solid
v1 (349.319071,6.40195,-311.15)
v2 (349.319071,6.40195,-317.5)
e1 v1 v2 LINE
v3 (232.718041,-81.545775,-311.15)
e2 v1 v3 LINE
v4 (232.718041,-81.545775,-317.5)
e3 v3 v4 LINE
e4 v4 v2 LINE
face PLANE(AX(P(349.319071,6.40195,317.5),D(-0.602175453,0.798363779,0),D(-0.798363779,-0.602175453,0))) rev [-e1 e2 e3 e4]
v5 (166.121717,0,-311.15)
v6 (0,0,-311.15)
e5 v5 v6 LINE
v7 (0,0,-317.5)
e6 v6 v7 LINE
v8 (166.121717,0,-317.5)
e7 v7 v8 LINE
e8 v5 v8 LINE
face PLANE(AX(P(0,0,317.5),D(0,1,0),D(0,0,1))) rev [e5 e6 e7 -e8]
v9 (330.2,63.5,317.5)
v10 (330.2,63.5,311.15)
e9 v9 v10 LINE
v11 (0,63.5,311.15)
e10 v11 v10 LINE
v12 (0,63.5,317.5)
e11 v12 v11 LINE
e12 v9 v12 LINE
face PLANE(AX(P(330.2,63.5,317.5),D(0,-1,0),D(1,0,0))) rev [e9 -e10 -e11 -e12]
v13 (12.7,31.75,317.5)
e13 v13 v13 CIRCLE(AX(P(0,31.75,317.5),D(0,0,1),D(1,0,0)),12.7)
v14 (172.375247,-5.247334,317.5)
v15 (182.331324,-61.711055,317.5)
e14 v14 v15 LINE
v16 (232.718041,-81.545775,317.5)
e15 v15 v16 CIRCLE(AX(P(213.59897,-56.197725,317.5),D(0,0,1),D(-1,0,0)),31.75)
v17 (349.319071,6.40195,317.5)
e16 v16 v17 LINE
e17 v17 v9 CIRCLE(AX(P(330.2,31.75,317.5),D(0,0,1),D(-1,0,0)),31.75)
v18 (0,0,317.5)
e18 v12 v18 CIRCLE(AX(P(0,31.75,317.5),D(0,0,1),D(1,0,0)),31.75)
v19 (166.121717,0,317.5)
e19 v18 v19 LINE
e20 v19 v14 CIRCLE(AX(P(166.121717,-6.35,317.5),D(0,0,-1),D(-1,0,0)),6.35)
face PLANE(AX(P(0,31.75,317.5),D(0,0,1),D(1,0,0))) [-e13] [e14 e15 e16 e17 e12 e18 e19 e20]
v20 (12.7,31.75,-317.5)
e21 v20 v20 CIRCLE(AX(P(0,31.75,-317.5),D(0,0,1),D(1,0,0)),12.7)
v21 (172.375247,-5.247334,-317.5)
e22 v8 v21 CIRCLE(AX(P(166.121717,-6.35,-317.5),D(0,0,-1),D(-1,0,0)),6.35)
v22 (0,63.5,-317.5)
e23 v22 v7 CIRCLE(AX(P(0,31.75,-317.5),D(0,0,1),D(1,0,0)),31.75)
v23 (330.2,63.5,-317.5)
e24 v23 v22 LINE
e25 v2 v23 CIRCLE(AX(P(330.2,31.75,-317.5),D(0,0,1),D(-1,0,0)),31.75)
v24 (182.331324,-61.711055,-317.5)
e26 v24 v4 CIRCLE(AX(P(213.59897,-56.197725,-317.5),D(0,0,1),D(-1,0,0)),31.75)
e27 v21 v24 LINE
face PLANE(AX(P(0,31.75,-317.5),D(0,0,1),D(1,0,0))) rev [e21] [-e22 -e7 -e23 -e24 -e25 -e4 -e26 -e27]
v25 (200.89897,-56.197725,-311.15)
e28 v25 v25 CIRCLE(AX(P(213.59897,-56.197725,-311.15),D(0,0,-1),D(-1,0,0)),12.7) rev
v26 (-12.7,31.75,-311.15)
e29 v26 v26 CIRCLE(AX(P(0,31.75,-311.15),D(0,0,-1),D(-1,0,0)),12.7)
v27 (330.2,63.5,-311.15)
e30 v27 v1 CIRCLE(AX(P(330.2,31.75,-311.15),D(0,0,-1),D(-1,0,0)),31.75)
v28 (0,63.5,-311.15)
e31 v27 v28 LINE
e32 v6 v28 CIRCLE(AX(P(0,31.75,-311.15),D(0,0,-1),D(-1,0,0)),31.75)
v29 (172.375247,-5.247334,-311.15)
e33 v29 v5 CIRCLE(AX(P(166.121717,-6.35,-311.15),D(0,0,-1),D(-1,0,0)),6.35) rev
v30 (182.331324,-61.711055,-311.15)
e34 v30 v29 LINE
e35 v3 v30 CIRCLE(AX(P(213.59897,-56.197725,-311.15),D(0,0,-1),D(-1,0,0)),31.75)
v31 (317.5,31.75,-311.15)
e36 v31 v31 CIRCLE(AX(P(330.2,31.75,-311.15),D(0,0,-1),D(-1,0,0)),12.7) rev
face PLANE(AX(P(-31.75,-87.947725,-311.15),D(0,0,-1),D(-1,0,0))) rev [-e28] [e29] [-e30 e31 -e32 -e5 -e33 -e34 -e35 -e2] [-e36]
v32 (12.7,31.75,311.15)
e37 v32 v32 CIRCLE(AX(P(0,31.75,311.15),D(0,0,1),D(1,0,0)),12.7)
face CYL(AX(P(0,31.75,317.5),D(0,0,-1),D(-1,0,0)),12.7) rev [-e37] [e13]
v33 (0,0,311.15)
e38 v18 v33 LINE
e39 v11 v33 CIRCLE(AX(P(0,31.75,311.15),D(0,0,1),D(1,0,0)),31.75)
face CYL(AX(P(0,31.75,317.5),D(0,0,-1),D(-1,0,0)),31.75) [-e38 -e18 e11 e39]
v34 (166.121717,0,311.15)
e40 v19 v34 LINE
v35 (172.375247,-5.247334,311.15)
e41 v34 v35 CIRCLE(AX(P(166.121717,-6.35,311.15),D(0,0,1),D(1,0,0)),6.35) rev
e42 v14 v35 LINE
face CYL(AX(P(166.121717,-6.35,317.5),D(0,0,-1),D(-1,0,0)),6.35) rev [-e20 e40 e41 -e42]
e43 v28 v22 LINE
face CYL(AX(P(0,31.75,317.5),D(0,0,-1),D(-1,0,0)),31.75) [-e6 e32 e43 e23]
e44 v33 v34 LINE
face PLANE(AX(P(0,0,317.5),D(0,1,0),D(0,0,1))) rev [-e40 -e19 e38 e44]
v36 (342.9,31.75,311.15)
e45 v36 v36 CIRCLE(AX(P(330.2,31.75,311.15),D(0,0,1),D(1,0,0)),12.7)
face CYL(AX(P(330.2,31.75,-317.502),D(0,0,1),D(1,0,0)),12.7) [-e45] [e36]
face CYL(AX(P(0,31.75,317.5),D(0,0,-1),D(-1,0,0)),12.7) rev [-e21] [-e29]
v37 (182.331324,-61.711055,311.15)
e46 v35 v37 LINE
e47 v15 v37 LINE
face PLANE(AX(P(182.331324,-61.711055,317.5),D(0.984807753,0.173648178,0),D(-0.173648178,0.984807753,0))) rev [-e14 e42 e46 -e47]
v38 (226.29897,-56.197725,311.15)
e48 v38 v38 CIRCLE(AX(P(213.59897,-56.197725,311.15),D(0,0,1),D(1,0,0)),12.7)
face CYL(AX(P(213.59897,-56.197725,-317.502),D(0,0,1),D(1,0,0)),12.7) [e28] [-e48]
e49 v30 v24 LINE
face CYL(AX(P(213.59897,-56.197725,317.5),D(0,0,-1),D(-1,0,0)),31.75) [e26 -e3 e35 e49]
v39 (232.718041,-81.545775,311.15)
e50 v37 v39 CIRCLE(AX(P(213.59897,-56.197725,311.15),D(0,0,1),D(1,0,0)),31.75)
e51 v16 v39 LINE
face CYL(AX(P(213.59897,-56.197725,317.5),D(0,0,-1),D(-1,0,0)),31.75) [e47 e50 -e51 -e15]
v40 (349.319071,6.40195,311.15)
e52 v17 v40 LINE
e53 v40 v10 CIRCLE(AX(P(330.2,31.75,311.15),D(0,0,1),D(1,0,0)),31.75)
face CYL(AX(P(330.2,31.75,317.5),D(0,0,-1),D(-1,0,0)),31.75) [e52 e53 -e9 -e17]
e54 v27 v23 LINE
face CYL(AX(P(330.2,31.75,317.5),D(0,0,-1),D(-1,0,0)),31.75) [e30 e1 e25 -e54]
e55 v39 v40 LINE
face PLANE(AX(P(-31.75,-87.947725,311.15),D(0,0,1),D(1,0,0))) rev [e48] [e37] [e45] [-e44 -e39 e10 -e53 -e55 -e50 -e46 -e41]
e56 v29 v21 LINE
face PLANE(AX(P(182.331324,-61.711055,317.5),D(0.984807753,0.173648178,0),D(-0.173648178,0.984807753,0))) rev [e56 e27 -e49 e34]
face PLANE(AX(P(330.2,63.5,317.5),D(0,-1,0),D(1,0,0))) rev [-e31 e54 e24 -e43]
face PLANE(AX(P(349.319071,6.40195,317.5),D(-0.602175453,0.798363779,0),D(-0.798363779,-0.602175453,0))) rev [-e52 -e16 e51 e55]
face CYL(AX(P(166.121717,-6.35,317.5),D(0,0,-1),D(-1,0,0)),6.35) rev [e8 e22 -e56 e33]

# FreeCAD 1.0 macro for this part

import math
import FreeCAD as App
import Part
import Sketcher
Q = App.Units.Quantity


def add_polygon(sketch, points):
    """Adds a closed chain of lines whose ends are joined by coincident constraints."""
    first, n = sketch.GeometryCount, len(points)
    for a, b in zip(points, points[1:] + points[:1]):
        sketch.addGeometry(Part.LineSegment(App.Vector(*a, 0), App.Vector(*b, 0)), False)
    for i in range(n):
        sketch.addConstraint(Sketcher.Constraint("Coincident", first + i, 2, first + (i + 1) % n, 1))

doc = App.newDocument("Part")
body = doc.addObject("PartDesign::Body", "Body")
body.AllowCompound = True

# Sketch on XY plane
sketch1 = body.newObject("Sketcher::SketchObject", "Sketch")
sketch1.AttachmentSupport = (doc.getObject("XY_Plane"), [""])
sketch1.MapMode = "FlatFace"
sketch1.addGeometry(Part.LineSegment(App.Vector(0, 0, 0), App.Vector(166.121717, 0, 0)), False)
sketch1.addGeometry(Part.ArcOfCircle(Part.Circle(App.Vector(166.121717, -6.35, 0), App.Vector(0, 0, 1), 6.35), math.radians(10), math.radians(90)), False)
sketch1.addGeometry(Part.LineSegment(App.Vector(172.375247, -5.247334, 0), App.Vector(182.331324, -61.711055, 0)), False)
sketch1.addGeometry(Part.ArcOfCircle(Part.Circle(App.Vector(213.59897, -56.197725, 0), App.Vector(0, 0, 1), 31.75), math.radians(-170), math.radians(-52.974138)), False)
sketch1.addGeometry(Part.LineSegment(App.Vector(232.718041, -81.545775, 0), App.Vector(349.319071, 6.40195, 0)), False)
sketch1.addGeometry(Part.ArcOfCircle(Part.Circle(App.Vector(330.2, 31.75, 0), App.Vector(0, 0, 1), 31.75), math.radians(-52.974138), math.radians(90)), False)
sketch1.addGeometry(Part.LineSegment(App.Vector(330.2, 63.5, 0), App.Vector(0, 63.5, 0)), False)
sketch1.addGeometry(Part.ArcOfCircle(Part.Circle(App.Vector(0, 31.75, 0), App.Vector(0, 0, 1), 31.75), math.radians(90), math.radians(270)), False)
sketch1.addGeometry(Part.Circle(App.Vector(0, 31.75, 0), App.Vector(0, 0, 1), 12.7), False)
sketch1.addConstraint(Sketcher.Constraint("Tangent", 0, 2, 1, 2))
sketch1.addConstraint(Sketcher.Constraint("Tangent", 1, 1, 2, 1))
sketch1.addConstraint(Sketcher.Constraint("Tangent", 2, 2, 3, 1))
sketch1.addConstraint(Sketcher.Constraint("Tangent", 3, 2, 4, 1))
sketch1.addConstraint(Sketcher.Constraint("Tangent", 4, 2, 5, 1))
sketch1.addConstraint(Sketcher.Constraint("Tangent", 5, 2, 6, 1))
sketch1.addConstraint(Sketcher.Constraint("Tangent", 6, 2, 7, 1))
sketch1.addConstraint(Sketcher.Constraint("Tangent", 7, 2, 0, 1))
sketch1.addConstraint(Sketcher.Constraint("Horizontal", 0))
sketch1.addConstraint(Sketcher.Constraint("Horizontal", 6))
sketch1.addConstraint(Sketcher.Constraint("Coincident", 7, 2, -1, 1))
sketch1.addConstraint(Sketcher.Constraint("Coincident", 8, 3, 7, 3))
sketch1.addConstraint(Sketcher.Constraint("Equal", 3, 5))
sketch1.addConstraint(Sketcher.Constraint("Equal", 5, 7))
sketch1.addConstraint(Sketcher.Constraint("Diameter", 8, Q("1 in")))
sketch1.addConstraint(Sketcher.Constraint("DistanceX", 6, 2, 6, 1, Q("13 in")))
sketch1.addConstraint(Sketcher.Constraint("Radius", 1, Q("0.25 in")))
sketch1.addConstraint(Sketcher.Constraint("Radius", 3, Q("1.25 in")))
sketch1.addConstraint(Sketcher.Constraint("Angle", 2, Q("-80 deg")))
sketch1.addConstraint(Sketcher.Constraint("Distance", 4, Q("5.75 in")))
sketch1.addConstraint(Sketcher.Constraint("DistanceX", 3, 3, 4, 2, Q("135.720101 mm")))
pad1 = body.newObject("PartDesign::Pad", "Pad")
pad1.Profile = sketch1
pad1.Length = Q("25 in")
pad1.Midplane = True

# Sketch on XZ plane
sketch2 = body.newObject("Sketcher::SketchObject", "Sketch001")
sketch2.AttachmentSupport = (doc.getObject("XZ_Plane"), [""])
sketch2.MapMode = "FlatFace"
sketch2.AttachmentOffset = App.Placement(App.Vector(0, 0, -2.5 * 25.4), App.Rotation())
add_polygon(sketch2, [(-31.75, -311.15), (-31.75, 311.15), (361.95, 311.15), (361.95, -311.15)])  # lines 0-3
sketch2.addConstraint(Sketcher.Constraint("Vertical", 0))
sketch2.addConstraint(Sketcher.Constraint("Horizontal", 1))
sketch2.addConstraint(Sketcher.Constraint("Vertical", 2))
sketch2.addConstraint(Sketcher.Constraint("Horizontal", 3))
sketch2.addConstraint(Sketcher.Constraint("DistanceX", 1, 1, 1, 2, Q("15.5 in")))
sketch2.addConstraint(Sketcher.Constraint("DistanceY", 0, 1, 0, 2, Q("24.5 in")))
sketch2.addConstraint(Sketcher.Constraint("DistanceX", 0, 2, -1, 1, Q("1.25 in")))
sketch2.addConstraint(Sketcher.Constraint("DistanceY", -1, 1, 0, 2, Q("12.25 in")))
pocket1 = body.newObject("PartDesign::Pocket", "Pocket")
pocket1.Profile = sketch2
pocket1.Type = "ThroughAll"
pocket1.Reversed = True

# Sketch on XY plane
sketch3 = body.newObject("Sketcher::SketchObject", "Sketch002")
sketch3.AttachmentSupport = (doc.getObject("XY_Plane"), [""])
sketch3.MapMode = "FlatFace"
sketch3.addGeometry(Part.Circle(App.Vector(330.2, 31.75, 0), App.Vector(0, 0, 1), 12.7), False)
sketch3.addConstraint(Sketcher.Constraint("Diameter", 0, Q("1 in")))
sketch3.addConstraint(Sketcher.Constraint("DistanceX", -1, 1, 0, 3, Q("13 in")))
sketch3.addConstraint(Sketcher.Constraint("DistanceY", -1, 1, 0, 3, Q("1.25 in")))
pad2 = body.newObject("PartDesign::Pad", "Pad001")
pad2.Profile = sketch3
pad2.Type = "UpToFirst"

# Sketch on XY plane
sketch4 = body.newObject("Sketcher::SketchObject", "Sketch003")
sketch4.AttachmentSupport = (doc.getObject("XY_Plane"), [""])
sketch4.MapMode = "FlatFace"
sketch4.addGeometry(Part.Circle(App.Vector(213.59897, -56.197725, 0), App.Vector(0, 0, 1), 12.7), False)
sketch4.addConstraint(Sketcher.Constraint("Diameter", 0, Q("1 in")))
sketch4.addConstraint(Sketcher.Constraint("DistanceX", -1, 1, 0, 3, Q("213.59897 mm")))
sketch4.addConstraint(Sketcher.Constraint("DistanceY", 0, 3, -1, 1, Q("56.197725 mm")))
pad3 = body.newObject("PartDesign::Pad", "Pad002")
pad3.Profile = sketch4
pad3.Type = "UpToFirst"

# Sketch on XY plane
sketch5 = body.newObject("Sketcher::SketchObject", "Sketch004")
sketch5.AttachmentSupport = (doc.getObject("XY_Plane"), [""])
sketch5.MapMode = "FlatFace"
sketch5.addGeometry(Part.Circle(App.Vector(330.2, 31.75, 0), App.Vector(0, 0, 1), 12.7), False)
sketch5.addConstraint(Sketcher.Constraint("Diameter", 0, Q("1 in")))
sketch5.addConstraint(Sketcher.Constraint("DistanceX", -1, 1, 0, 3, Q("13 in")))
sketch5.addConstraint(Sketcher.Constraint("DistanceY", -1, 1, 0, 3, Q("1.25 in")))
pad4 = body.newObject("PartDesign::Pad", "Pad003")
pad4.Profile = sketch5
pad4.Type = "UpToFirst"
pad4.Reversed = True

# Sketch on XY plane
sketch6 = body.newObject("Sketcher::SketchObject", "Sketch005")
sketch6.AttachmentSupport = (doc.getObject("XY_Plane"), [""])
sketch6.MapMode = "FlatFace"
sketch6.addGeometry(Part.Circle(App.Vector(213.59897, -56.197725, 0), App.Vector(0, 0, 1), 12.7), False)
sketch6.addConstraint(Sketcher.Constraint("Diameter", 0, Q("1 in")))
sketch6.addConstraint(Sketcher.Constraint("DistanceX", -1, 1, 0, 3, Q("213.59897 mm")))
sketch6.addConstraint(Sketcher.Constraint("DistanceY", 0, 3, -1, 1, Q("56.197725 mm")))
pad5 = body.newObject("PartDesign::Pad", "Pad004")
pad5.Profile = sketch6
pad5.Type = "UpToFirst"
pad5.Reversed = True

doc.recompute()
